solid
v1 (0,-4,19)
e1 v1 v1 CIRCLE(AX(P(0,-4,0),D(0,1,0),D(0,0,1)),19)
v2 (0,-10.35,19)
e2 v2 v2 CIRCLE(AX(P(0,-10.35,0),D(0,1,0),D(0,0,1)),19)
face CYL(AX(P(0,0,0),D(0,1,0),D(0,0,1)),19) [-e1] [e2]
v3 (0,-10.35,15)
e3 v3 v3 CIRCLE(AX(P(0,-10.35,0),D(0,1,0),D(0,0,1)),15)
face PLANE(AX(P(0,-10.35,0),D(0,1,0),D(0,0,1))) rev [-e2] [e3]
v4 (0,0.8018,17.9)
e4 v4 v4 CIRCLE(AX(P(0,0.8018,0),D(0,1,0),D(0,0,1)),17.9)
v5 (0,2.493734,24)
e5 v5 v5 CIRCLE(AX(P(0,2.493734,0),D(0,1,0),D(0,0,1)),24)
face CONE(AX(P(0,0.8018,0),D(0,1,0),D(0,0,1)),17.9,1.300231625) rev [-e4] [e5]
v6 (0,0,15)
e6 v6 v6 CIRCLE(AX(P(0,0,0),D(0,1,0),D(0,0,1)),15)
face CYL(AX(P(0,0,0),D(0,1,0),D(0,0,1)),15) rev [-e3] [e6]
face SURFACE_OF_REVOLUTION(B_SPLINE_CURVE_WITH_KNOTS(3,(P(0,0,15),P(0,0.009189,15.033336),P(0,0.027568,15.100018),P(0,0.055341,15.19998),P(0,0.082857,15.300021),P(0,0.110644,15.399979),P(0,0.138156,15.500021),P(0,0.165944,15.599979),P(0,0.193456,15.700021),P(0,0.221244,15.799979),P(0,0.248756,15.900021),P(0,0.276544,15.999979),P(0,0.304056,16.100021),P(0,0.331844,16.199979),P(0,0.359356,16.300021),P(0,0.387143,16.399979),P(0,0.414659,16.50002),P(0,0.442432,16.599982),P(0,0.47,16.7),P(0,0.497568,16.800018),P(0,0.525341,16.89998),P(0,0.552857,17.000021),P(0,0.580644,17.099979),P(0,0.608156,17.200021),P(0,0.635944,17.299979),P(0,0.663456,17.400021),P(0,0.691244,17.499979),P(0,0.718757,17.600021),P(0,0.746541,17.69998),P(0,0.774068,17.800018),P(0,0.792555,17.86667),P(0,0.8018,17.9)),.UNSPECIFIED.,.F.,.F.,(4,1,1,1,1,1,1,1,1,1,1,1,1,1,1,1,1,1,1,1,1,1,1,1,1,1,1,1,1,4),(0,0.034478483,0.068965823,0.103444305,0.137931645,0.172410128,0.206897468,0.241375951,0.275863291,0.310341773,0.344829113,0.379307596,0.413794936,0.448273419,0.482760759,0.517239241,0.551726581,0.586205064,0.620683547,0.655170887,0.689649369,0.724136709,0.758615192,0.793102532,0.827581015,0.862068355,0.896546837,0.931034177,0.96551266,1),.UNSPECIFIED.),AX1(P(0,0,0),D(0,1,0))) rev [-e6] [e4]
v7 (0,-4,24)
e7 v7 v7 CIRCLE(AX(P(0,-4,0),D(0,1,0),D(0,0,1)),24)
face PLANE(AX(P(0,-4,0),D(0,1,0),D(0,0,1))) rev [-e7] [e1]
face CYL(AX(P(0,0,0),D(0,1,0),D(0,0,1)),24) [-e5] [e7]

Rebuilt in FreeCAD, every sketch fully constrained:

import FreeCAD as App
import Part
import Sketcher

doc = App.newDocument("Part")
body = doc.addObject("PartDesign::Body", "Body")

# Sketch on YZ plane
sketch1 = body.newObject("Sketcher::SketchObject", "Sketch")
sketch1.AttachmentSupport = (doc.getObject("YZ_Plane"), [""])
sketch1.MapMode = "FlatFace"
sketch1.addGeometry([
    Part.LineSegment(App.Vector(-10.35, 15, 0), App.Vector(0, 15, 0)),  # 0
    Part.BSplineCurve([App.Vector(0, 15, 0), App.Vector(0.009189, 15.033336, 0), App.Vector(0.027568, 15.100018, 0), App.Vector(0.055341, 15.19998, 0), App.Vector(0.082857, 15.300021, 0), App.Vector(0.110644, 15.399979, 0), App.Vector(0.138156, 15.500021, 0), App.Vector(0.165944, 15.599979, 0), App.Vector(0.193456, 15.700021, 0), App.Vector(0.221244, 15.799979, 0), App.Vector(0.248756, 15.900021, 0), App.Vector(0.276544, 15.999979, 0), App.Vector(0.304056, 16.100021, 0), App.Vector(0.331844, 16.199979, 0), App.Vector(0.359356, 16.300021, 0), App.Vector(0.387143, 16.399979, 0), App.Vector(0.414659, 16.50002, 0), App.Vector(0.442432, 16.599982, 0), App.Vector(0.47, 16.7, 0), App.Vector(0.497568, 16.800018, 0), App.Vector(0.525341, 16.89998, 0), App.Vector(0.552857, 17.000021, 0), App.Vector(0.580644, 17.099979, 0), App.Vector(0.608156, 17.200021, 0), App.Vector(0.635944, 17.299979, 0), App.Vector(0.663456, 17.400021, 0), App.Vector(0.691244, 17.499979, 0), App.Vector(0.718757, 17.600021, 0), App.Vector(0.746541, 17.69998, 0), App.Vector(0.774068, 17.800018, 0), App.Vector(0.792555, 17.86667, 0), App.Vector(0.8018, 17.9, 0)], [4, 1, 1, 1, 1, 1, 1, 1, 1, 1, 1, 1, 1, 1, 1, 1, 1, 1, 1, 1, 1, 1, 1, 1, 1, 1, 1, 1, 1, 4], [0, 0.034478483, 0.068965823, 0.103444305, 0.137931645, 0.172410128, 0.206897468, 0.241375951, 0.275863291, 0.310341773, 0.344829113, 0.379307596, 0.413794936, 0.448273419, 0.482760759, 0.517239241, 0.551726581, 0.586205064, 0.620683547, 0.655170887, 0.689649369, 0.724136709, 0.758615192, 0.793102532, 0.827581015, 0.862068355, 0.896546837, 0.931034177, 0.96551266, 1], False, 3, [1, 1, 1, 1, 1, 1, 1, 1, 1, 1, 1, 1, 1, 1, 1, 1, 1, 1, 1, 1, 1, 1, 1, 1, 1, 1, 1, 1, 1, 1, 1, 1], False),  # 1
    Part.LineSegment(App.Vector(0.8018, 17.9, 0), App.Vector(2.493734, 24, 0)),  # 2
    Part.LineSegment(App.Vector(2.493734, 24, 0), App.Vector(-4, 24, 0)),  # 3
    Part.LineSegment(App.Vector(-4, 24, 0), App.Vector(-4, 19, 0)),  # 4
    Part.LineSegment(App.Vector(-4, 19, 0), App.Vector(-10.35, 19, 0)),  # 5
    Part.LineSegment(App.Vector(-10.35, 19, 0), App.Vector(-10.35, 15, 0)),  # 6
], False)
sketch1.addConstraint([
    Sketcher.Constraint("Block", 1),
    Sketcher.Constraint("Coincident", 0, 2, 1, 1),
    Sketcher.Constraint("Coincident", 1, 2, 2, 1),
    Sketcher.Constraint("Coincident", 2, 2, 3, 1),
    Sketcher.Constraint("Coincident", 3, 2, 4, 1),
    Sketcher.Constraint("Coincident", 4, 2, 5, 1),
    Sketcher.Constraint("Coincident", 5, 2, 6, 1),
    Sketcher.Constraint("Coincident", 6, 2, 0, 1),
    Sketcher.Constraint("Horizontal", 0),
    Sketcher.Constraint("Horizontal", 3),
    Sketcher.Constraint("Vertical", 4),
    Sketcher.Constraint("Horizontal", 5),
    Sketcher.Constraint("Vertical", 6),
    Sketcher.Constraint("DistanceY", 4, 2, 4, 1, 5.0),
    Sketcher.Constraint("DistanceY", 6, 2, 6, 1, 4.0),
    Sketcher.Constraint("DistanceX", 3, 2, -1, 1, 4.0),
    Sketcher.Constraint("DistanceX", 0, 1, 0, 2, 10.35),
    Sketcher.Constraint("DistanceX", 3, 2, 3, 1, 6.493734),
])
revolution = body.newObject("PartDesign::Revolution", "Revolution")
revolution.Profile = sketch1
revolution.ReferenceAxis = (sketch1, ["H_Axis"])
revolution.Angle = 360

doc.recompute()
